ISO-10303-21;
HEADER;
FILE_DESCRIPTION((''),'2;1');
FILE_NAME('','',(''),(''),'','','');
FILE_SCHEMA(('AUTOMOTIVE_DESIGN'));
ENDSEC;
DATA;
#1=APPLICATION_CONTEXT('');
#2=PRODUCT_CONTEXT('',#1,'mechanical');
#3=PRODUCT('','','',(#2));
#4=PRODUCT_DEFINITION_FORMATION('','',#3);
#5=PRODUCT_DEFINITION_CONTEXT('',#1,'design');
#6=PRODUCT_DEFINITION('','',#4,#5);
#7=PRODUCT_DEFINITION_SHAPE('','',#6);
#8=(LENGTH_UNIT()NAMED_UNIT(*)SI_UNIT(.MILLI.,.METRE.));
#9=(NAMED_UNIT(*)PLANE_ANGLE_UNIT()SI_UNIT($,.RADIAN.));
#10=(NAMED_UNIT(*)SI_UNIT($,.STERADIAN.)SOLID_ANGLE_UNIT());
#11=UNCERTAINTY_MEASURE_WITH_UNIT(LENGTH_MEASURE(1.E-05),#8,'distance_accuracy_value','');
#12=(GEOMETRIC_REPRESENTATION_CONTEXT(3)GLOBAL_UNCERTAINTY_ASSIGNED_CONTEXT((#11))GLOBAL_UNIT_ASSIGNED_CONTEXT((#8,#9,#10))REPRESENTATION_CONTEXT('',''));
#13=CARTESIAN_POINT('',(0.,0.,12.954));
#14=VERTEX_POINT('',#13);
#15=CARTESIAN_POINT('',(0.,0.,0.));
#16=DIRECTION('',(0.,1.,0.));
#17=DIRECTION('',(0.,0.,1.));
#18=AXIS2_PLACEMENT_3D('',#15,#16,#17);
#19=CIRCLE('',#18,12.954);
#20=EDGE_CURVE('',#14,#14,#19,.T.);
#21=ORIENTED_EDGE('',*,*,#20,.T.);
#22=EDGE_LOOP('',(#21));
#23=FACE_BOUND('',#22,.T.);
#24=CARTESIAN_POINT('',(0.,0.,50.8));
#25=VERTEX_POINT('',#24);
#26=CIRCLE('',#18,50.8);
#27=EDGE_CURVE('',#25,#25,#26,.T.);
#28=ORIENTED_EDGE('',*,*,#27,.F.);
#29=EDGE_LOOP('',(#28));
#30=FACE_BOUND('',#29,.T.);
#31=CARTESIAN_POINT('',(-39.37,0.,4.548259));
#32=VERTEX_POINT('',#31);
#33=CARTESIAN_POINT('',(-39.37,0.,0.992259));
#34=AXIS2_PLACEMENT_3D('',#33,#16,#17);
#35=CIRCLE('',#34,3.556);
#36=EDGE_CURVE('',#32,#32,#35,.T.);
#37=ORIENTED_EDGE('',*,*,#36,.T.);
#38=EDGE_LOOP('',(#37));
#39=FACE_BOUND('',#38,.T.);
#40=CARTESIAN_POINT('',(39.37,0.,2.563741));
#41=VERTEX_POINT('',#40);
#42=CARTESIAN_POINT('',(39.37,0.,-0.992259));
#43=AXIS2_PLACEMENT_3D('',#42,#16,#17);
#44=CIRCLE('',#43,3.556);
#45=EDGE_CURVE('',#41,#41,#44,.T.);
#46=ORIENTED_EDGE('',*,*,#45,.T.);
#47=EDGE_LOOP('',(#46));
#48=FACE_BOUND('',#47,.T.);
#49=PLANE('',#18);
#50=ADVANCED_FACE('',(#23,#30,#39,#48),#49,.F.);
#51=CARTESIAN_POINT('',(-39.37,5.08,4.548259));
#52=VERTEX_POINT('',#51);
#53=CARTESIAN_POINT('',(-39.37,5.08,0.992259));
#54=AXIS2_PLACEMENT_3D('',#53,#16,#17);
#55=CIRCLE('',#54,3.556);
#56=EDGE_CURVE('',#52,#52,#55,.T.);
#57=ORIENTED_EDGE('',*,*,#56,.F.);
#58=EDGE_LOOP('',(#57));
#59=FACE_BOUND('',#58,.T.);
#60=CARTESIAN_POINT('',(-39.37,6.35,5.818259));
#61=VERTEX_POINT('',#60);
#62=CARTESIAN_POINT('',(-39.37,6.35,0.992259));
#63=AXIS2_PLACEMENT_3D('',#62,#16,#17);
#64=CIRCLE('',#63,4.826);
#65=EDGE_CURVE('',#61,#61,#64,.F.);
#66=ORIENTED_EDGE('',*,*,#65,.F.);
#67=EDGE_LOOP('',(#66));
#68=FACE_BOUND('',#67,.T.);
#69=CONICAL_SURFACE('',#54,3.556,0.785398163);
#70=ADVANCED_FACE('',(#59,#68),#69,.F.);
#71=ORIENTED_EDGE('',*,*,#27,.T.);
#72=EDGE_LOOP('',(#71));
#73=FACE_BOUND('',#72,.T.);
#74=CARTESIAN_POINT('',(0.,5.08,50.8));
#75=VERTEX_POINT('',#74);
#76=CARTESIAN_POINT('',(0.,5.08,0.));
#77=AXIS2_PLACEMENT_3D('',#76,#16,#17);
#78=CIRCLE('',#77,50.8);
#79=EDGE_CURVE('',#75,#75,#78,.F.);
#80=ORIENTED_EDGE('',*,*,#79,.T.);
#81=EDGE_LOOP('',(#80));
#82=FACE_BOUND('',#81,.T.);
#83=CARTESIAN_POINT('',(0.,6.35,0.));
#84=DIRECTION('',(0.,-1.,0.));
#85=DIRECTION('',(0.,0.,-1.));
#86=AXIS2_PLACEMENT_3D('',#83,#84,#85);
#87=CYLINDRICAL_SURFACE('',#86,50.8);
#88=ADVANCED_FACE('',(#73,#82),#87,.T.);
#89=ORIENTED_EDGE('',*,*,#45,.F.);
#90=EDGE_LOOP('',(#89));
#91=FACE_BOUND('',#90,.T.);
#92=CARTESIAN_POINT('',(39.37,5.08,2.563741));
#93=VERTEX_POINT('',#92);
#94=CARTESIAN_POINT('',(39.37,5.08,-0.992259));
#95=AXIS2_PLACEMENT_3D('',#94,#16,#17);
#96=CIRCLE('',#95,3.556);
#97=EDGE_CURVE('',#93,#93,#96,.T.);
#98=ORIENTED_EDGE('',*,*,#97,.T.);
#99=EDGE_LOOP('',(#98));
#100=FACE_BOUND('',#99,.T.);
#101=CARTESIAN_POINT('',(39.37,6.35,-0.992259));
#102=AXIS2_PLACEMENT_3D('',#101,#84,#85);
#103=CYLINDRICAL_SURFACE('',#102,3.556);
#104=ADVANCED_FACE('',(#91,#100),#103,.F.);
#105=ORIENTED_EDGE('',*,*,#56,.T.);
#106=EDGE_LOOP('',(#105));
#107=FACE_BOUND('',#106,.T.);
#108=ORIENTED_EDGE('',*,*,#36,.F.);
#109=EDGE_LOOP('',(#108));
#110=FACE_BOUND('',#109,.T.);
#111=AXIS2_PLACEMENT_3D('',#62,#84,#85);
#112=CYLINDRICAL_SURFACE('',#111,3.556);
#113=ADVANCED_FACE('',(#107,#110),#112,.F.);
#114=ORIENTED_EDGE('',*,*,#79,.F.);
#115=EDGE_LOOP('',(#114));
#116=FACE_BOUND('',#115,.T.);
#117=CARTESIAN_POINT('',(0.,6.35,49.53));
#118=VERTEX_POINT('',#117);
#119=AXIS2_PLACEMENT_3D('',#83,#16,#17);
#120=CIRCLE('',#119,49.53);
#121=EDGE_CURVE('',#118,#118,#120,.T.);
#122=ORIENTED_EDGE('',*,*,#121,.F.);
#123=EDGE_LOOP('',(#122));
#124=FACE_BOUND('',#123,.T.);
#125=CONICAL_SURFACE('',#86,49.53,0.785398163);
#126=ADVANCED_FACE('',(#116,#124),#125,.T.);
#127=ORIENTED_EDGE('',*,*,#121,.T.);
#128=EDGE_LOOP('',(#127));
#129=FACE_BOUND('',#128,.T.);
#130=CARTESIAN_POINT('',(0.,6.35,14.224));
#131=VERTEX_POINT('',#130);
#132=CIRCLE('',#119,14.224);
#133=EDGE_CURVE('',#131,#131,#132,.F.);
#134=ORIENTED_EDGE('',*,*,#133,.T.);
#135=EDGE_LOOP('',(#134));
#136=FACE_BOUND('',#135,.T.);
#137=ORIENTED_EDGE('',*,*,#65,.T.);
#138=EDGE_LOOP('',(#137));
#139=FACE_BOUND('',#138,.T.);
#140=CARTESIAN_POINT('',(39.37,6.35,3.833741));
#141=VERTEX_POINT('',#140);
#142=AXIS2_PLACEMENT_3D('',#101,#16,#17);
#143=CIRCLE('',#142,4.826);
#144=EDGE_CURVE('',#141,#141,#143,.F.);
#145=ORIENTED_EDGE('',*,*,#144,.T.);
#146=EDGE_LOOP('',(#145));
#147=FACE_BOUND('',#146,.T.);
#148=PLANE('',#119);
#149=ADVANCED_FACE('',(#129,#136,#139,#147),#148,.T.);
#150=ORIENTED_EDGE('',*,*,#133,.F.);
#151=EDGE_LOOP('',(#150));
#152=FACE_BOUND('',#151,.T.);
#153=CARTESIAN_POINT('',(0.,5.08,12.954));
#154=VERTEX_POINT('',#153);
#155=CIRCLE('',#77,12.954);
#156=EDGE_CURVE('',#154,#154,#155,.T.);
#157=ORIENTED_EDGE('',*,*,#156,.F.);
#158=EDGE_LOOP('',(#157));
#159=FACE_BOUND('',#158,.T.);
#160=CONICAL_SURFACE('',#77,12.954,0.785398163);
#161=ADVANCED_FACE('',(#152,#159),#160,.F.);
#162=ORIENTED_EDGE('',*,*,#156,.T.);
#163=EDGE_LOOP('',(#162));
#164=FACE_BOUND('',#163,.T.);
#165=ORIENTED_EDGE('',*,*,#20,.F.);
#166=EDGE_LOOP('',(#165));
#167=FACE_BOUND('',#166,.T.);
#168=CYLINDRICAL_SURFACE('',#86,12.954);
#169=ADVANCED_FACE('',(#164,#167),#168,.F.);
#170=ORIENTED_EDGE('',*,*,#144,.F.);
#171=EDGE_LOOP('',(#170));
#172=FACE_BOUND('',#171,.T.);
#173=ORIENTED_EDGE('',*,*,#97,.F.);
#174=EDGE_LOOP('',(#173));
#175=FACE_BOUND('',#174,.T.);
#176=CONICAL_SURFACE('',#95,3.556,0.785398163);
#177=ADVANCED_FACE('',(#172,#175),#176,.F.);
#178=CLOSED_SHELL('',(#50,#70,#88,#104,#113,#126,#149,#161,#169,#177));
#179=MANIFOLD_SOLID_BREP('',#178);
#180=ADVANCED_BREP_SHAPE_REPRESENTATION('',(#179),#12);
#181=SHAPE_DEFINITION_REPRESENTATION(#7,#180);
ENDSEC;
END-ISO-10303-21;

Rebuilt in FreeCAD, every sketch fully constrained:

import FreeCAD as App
import Part
import Sketcher

V = App.Vector
Q = App.Units.Quantity


def edges_at(feature, points):
    """Names of the edges that pass closest to the given points."""
    edges = feature.Shape.Edges
    near = lambda p: min(range(len(edges)), key=lambda i: edges[i].distToShape(Part.Vertex(*p))[0])
    return sorted({f"Edge{near(p) + 1}" for p in points})

doc = App.newDocument("Part")
params = doc.addObject("Spreadsheet::Sheet", "Params")
for row, (alias, value) in enumerate([
    ("sketch1_diameter", "4 in"),
    ("sketch1_diameter2", "0.28 in"),
    ("sketch1_diameter3", "1.02 in"),
    ("pad1_length", "0.25 in"),
    ("chamfer_size", "0.05 in"),
], start=1):
    params.set(f"A{row}", alias)
    params.set(f"B{row}", "=" + value)
    params.setAlias(f"B{row}", alias)

body = doc.addObject("PartDesign::Body", "Body")

# Sketch on XZ plane
sketch1 = body.newObject("Sketcher::SketchObject", "Sketch")
sketch1.AttachmentSupport = (doc.getObject("XZ_Plane"), [""])
sketch1.MapMode = "FlatFace"
sketch1.addGeometry(Part.Circle(V(0, 0, 0), V(0, 0, 1), 50.8), False)
sketch1.addGeometry(Part.Circle(V(-39.37, 0.992259, 0), V(0, 0, 1), 3.556), False)
sketch1.addGeometry(Part.Circle(V(0, 0, 0), V(0, 0, 1), 12.954), False)
sketch1.addGeometry(Part.Circle(V(39.37, -0.992259, 0), V(0, 0, 1), 3.556), False)
sketch1.addConstraint(Sketcher.Constraint("Coincident", 0, 3, -1, 1))
sketch1.addConstraint(Sketcher.Constraint("Coincident", 2, 3, -1, 1))
sketch1.addConstraint(Sketcher.Constraint("Equal", 1, 3))
sketch1.addConstraint(Sketcher.Constraint("Symmetric", 1, 3, 3, 3, -1, 1))
sketch1.addConstraint(Sketcher.Constraint("Diameter", 0, Q("4 in")))
sketch1.addConstraint(Sketcher.Constraint("Diameter", 1, Q("0.28 in")))
sketch1.addConstraint(Sketcher.Constraint("Diameter", 2, Q("1.02 in")))
sketch1.addConstraint(Sketcher.Constraint("DistanceX", 1, 3, 3, 3, Q("3.1 in")))
sketch1.addConstraint(Sketcher.Constraint("DistanceY", -1, 1, 1, 3, Q("0.992259 mm")))
sketch1.setExpression("Constraints[4]", "Params.sketch1_diameter")
sketch1.setExpression("Constraints[5]", "Params.sketch1_diameter2")
sketch1.setExpression("Constraints[6]", "Params.sketch1_diameter3")
pad1 = body.newObject("PartDesign::Pad", "Pad")
pad1.Profile = sketch1
pad1.setExpression("Length", "Params.pad1_length")
pad1.Reversed = True
doc.recompute()

chamfer = body.newObject("PartDesign::Chamfer", "Chamfer")
chamfer.Base = (pad1, edges_at(pad1, [
    (35.814, 6.35, -0.992),
    (-50.8, 6.35, 0),
    (-42.926, 6.35, 0.992),
    (-12.954, 6.35, 0),
]))
chamfer.setExpression("Size", "Params.chamfer_size")

doc.recompute()
